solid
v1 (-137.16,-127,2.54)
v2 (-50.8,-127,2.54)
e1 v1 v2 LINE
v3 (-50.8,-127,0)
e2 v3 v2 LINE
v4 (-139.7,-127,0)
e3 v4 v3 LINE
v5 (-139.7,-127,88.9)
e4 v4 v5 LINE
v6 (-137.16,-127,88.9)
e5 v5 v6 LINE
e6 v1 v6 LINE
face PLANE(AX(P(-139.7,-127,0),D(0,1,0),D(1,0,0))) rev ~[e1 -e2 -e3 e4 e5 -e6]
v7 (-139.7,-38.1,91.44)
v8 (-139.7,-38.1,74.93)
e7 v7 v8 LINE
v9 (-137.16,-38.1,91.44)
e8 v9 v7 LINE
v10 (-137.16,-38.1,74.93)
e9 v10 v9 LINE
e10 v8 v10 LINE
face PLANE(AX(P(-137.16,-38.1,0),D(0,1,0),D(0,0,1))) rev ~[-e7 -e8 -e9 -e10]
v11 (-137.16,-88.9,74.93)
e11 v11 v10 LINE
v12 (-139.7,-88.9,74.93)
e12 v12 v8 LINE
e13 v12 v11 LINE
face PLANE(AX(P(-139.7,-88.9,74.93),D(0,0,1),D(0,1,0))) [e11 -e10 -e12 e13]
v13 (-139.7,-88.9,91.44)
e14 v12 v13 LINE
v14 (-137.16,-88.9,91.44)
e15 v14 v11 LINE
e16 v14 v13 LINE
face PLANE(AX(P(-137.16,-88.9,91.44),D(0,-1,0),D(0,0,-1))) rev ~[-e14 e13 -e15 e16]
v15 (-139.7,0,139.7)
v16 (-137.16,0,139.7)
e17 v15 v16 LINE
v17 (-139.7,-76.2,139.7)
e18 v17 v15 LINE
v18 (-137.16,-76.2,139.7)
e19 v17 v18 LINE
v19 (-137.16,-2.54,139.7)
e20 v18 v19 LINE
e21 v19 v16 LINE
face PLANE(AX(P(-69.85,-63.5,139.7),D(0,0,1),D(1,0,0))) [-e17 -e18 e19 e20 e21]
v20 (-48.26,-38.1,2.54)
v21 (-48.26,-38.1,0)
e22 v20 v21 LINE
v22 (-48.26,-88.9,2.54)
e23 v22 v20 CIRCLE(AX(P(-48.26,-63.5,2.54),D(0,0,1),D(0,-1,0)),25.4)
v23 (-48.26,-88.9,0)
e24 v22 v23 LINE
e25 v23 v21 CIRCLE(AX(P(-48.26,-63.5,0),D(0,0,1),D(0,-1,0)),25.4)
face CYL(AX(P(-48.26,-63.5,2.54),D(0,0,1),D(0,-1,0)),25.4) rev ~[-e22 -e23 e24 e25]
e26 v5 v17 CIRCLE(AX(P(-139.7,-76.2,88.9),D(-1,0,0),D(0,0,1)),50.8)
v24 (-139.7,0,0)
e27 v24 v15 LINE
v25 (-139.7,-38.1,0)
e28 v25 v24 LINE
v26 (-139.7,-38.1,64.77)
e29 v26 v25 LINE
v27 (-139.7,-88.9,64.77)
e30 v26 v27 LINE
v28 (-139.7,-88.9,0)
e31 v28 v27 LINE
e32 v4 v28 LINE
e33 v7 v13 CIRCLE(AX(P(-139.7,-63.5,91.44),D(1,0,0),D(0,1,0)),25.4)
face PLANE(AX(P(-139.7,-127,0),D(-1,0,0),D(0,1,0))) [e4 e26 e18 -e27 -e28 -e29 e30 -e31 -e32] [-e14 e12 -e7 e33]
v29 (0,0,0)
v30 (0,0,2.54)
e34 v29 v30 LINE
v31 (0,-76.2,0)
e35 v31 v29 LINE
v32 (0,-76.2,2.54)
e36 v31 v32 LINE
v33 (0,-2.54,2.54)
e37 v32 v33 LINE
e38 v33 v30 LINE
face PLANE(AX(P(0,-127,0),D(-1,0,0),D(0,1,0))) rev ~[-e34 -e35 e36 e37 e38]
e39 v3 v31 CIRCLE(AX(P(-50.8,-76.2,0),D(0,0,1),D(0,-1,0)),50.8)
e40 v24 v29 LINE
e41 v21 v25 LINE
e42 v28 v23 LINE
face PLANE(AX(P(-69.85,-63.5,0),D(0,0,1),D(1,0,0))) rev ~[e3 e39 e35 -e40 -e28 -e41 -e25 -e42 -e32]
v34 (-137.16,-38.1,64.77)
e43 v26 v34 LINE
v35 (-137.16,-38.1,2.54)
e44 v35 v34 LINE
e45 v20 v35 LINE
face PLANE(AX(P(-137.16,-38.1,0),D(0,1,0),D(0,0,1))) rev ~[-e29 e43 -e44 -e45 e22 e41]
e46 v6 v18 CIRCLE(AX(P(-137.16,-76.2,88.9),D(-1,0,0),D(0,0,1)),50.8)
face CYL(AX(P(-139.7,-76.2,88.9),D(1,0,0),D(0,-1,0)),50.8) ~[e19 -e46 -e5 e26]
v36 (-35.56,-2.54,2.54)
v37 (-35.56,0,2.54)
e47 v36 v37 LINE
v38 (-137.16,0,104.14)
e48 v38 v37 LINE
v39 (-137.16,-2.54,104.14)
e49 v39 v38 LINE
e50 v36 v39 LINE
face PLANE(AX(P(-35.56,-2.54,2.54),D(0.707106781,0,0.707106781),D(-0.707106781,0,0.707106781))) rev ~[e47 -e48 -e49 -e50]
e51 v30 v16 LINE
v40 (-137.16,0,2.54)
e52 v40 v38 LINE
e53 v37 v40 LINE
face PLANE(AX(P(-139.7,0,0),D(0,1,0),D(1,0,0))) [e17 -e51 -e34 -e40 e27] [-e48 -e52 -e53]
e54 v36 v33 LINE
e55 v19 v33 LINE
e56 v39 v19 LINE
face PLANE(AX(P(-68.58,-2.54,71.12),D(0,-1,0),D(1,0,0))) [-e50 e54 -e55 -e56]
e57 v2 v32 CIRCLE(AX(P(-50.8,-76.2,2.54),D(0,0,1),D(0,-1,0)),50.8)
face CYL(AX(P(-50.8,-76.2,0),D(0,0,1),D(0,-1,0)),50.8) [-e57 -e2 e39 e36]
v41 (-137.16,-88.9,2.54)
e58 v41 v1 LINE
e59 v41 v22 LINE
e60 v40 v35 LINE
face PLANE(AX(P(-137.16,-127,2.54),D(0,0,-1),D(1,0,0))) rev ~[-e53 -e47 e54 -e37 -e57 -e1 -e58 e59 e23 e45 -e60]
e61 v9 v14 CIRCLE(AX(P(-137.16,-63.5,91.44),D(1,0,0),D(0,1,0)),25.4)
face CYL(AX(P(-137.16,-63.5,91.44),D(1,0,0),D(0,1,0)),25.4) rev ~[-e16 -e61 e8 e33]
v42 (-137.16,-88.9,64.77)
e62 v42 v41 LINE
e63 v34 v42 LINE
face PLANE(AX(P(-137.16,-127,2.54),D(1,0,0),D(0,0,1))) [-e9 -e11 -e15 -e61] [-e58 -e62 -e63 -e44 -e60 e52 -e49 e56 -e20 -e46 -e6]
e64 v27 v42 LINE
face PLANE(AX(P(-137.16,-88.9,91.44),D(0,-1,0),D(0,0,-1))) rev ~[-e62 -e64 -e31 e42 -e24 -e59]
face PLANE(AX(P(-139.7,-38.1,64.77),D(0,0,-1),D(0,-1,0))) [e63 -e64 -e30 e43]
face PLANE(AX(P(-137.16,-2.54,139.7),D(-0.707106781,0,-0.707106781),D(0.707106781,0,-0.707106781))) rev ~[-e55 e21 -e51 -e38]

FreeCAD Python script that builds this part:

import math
import FreeCAD as App
import Part
import Sketcher
from FreeCAD import Vector
Q = App.Units.Quantity


def edges_at(feature, points):
    """Names of the edges that pass closest to the given points."""
    edges = feature.Shape.Edges
    near = lambda p: min(range(len(edges)), key=lambda i: edges[i].distToShape(Part.Vertex(*p))[0])
    return sorted({f"Edge{near(p) + 1}" for p in points})

doc = App.newDocument("Part")
body = doc.addObject("PartDesign::Body", "Body")

# Sketch on XY plane
sketch1 = doc.addObject("Sketcher::SketchObject", "Sketch")
body.addObject(sketch1)
sketch1.AttachmentSupport = (doc.XY_Plane, [""])
sketch1.MapMode = "FlatFace"
sketch1.addGeometry([
    Part.LineSegment(Vector(-139.7, 0, 0), Vector(-139.7, -127, 0)),
    Part.LineSegment(Vector(-139.7, -127, 0), Vector(0, -127, 0)),
    Part.LineSegment(Vector(0, -127, 0), Vector(0, 0, 0)),
    Part.LineSegment(Vector(0, 0, 0), Vector(-139.7, 0, 0)),
], False)
sketch1.addConstraint([
    Sketcher.Constraint("Coincident", 0, 2, 1, 1),
    Sketcher.Constraint("Coincident", 1, 2, 2, 1),
    Sketcher.Constraint("Coincident", 2, 2, 3, 1),
    Sketcher.Constraint("Coincident", 3, 2, 0, 1),
    Sketcher.Constraint("Vertical", 0),
    Sketcher.Constraint("Horizontal", 1),
    Sketcher.Constraint("Vertical", 2),
    Sketcher.Constraint("Horizontal", 3),
    Sketcher.Constraint("Coincident", 2, 2, -1, 1),
    Sketcher.Constraint("DistanceY", 0, 2, 0, 1, Q("5 in")),
    Sketcher.Constraint("DistanceX", 1, 1, 1, 2, Q("5.5 in")),
])
pad1 = doc.addObject("PartDesign::Pad", "Pad")
body.addObject(pad1)
pad1.Profile = sketch1
pad1.Length = Q("5.5 in")

# Sketch on XZ plane
sketch2 = doc.addObject("Sketcher::SketchObject", "Sketch001")
body.addObject(sketch2)
sketch2.AttachmentSupport = (doc.XZ_Plane, [""])
sketch2.MapMode = "FlatFace"
sketch2.AttachmentOffset = App.Placement(Vector(0, 0, 5 * 25.4), App.Rotation())
sketch2.addGeometry([
    Part.LineSegment(Vector(-137.16, 139.7, 0), Vector(-137.16, 2.54, 0)),
    Part.LineSegment(Vector(-137.16, 2.54, 0), Vector(0, 2.54, 0)),
    Part.LineSegment(Vector(0, 2.54, 0), Vector(0, 139.7, 0)),
    Part.LineSegment(Vector(0, 139.7, 0), Vector(-137.16, 139.7, 0)),
], False)
sketch2.addConstraint([
    Sketcher.Constraint("Coincident", 0, 2, 1, 1),
    Sketcher.Constraint("Coincident", 1, 2, 2, 1),
    Sketcher.Constraint("Coincident", 2, 2, 3, 1),
    Sketcher.Constraint("Coincident", 3, 2, 0, 1),
    Sketcher.Constraint("Vertical", 0),
    Sketcher.Constraint("Horizontal", 1),
    Sketcher.Constraint("Vertical", 2),
    Sketcher.Constraint("Horizontal", 3),
    Sketcher.Constraint("PointOnObject", 1, 2, -2),
    Sketcher.Constraint("Equal", 3, 0),
    Sketcher.Constraint("DistanceX", 1, 1, 1, 2, Q("5.4 in")),
    Sketcher.Constraint("DistanceY", -1, 1, 0, 2, Q("0.1 in")),
])
pocket1 = doc.addObject("PartDesign::Pocket", "Pocket")
body.addObject(pocket1)
pocket1.Profile = sketch2
pocket1.Length = Q("4.9 in")

# Sketch on XZ plane
sketch3 = doc.addObject("Sketcher::SketchObject", "Sketch002")
body.addObject(sketch3)
sketch3.AttachmentSupport = (doc.XZ_Plane, [""])
sketch3.MapMode = "FlatFace"
sketch3.AttachmentOffset = App.Placement(Vector(0, 0, 0.1 * 25.4), App.Rotation())
sketch3.addGeometry([
    Part.LineSegment(Vector(-6.918556, 178.288981, 0), Vector(-137.16, 139.7, 0)),
    Part.LineSegment(Vector(-137.16, 139.7, 0), Vector(0, 2.54, 0)),
    Part.LineSegment(Vector(0, 2.54, 0), Vector(55.803198, 142.750546, 0)),
    Part.LineSegment(Vector(55.803198, 142.750546, 0), Vector(-6.918556, 178.288981, 0)),
], False)
sketch3.addConstraint([
    Sketcher.Constraint("Coincident", 0, 2, 1, 1),
    Sketcher.Constraint("Coincident", 1, 2, 2, 1),
    Sketcher.Constraint("Coincident", 2, 2, 3, 1),
    Sketcher.Constraint("Coincident", 3, 2, 0, 1),
    Sketcher.Constraint("PointOnObject", 1, 2, -2),
    Sketcher.Constraint("Angle", 1, Q("-45 deg")),
    Sketcher.Constraint("DistanceX", 0, 2, -1, 1, Q("5.4 in")),
    Sketcher.Constraint("DistanceY", -1, 1, 0, 2, Q("5.5 in")),
    Sketcher.Constraint("DistanceX", -1, 1, 2, 2, 55.803198),
    Sketcher.Constraint("Distance", 0, 135.83793),
    Sketcher.Constraint("DistanceY", -1, 1, 3, 2, 178.288981),
    Sketcher.Constraint("Distance", 2, 150.907237),
])
pocket2 = doc.addObject("PartDesign::Pocket", "Pocket001")
body.addObject(pocket2)
pocket2.Profile = sketch3
pocket2.Length = Q("1 in")

# Sketch on XZ plane
sketch4 = doc.addObject("Sketcher::SketchObject", "Sketch003")
body.addObject(sketch4)
sketch4.AttachmentSupport = (doc.XZ_Plane, [""])
sketch4.MapMode = "FlatFace"
sketch4.AttachmentOffset = App.Placement(Vector(0, 0, 0.1 * 25.4), App.Rotation())
sketch4.addGeometry([
    Part.LineSegment(Vector(-137.16, 104.14, 0), Vector(-137.16, 2.54, 0)),
    Part.LineSegment(Vector(-137.16, 2.54, 0), Vector(-35.56, 2.54, 0)),
    Part.LineSegment(Vector(-35.56, 2.54, 0), Vector(-137.16, 104.14, 0)),
], False)
sketch4.addConstraint([
    Sketcher.Constraint("Coincident", 0, 2, 1, 1),
    Sketcher.Constraint("Coincident", 1, 2, 2, 1),
    Sketcher.Constraint("Coincident", 2, 2, 0, 1),
    Sketcher.Constraint("Vertical", 0),
    Sketcher.Constraint("Horizontal", 1),
    Sketcher.Constraint("Equal", 1, 0),
    Sketcher.Constraint("DistanceX", 1, 1, 1, 2, Q("4 in")),
    Sketcher.Constraint("DistanceX", 0, 2, -1, 1, Q("5.4 in")),
    Sketcher.Constraint("DistanceY", -1, 1, 0, 2, Q("0.1 in")),
])
pocket3 = doc.addObject("PartDesign::Pocket", "Pocket002")
body.addObject(pocket3)
pocket3.Profile = sketch4
pocket3.Length = Q("1 in")

# Sketch on XY plane
sketch5 = doc.addObject("Sketcher::SketchObject", "Sketch004")
body.addObject(sketch5)
sketch5.AttachmentSupport = (doc.XY_Plane, [""])
sketch5.MapMode = "FlatFace"
sketch5.AttachmentOffset = App.Placement(Vector(0, 0, 0.1 * 25.4), App.Rotation())
sketch5.addGeometry([
    Part.LineSegment(Vector(-137.16, -38.1, 0), Vector(-137.16, -88.9, 0)),
    Part.LineSegment(Vector(-137.16, -88.9, 0), Vector(-48.26, -88.9, 0)),
    Part.ArcOfCircle(Part.Circle(Vector(-48.26, -63.5, 0), Vector(0, 0, 1), 25.4), math.radians(-90), math.radians(90)),
    Part.LineSegment(Vector(-48.26, -38.1, 0), Vector(-137.16, -38.1, 0)),
], False)
sketch5.addConstraint([
    Sketcher.Constraint("Coincident", 0, 2, 1, 1),
    Sketcher.Constraint("Tangent", 1, 2, 2, 1),
    Sketcher.Constraint("Tangent", 2, 2, 3, 1),
    Sketcher.Constraint("Coincident", 3, 2, 0, 1),
    Sketcher.Constraint("Vertical", 0),
    Sketcher.Constraint("Horizontal", 1),
    Sketcher.Constraint("Horizontal", 3),
    Sketcher.Constraint("Radius", 2, Q("1 in")),
    Sketcher.Constraint("DistanceX", 1, 1, 1, 2, Q("3.5 in")),
    Sketcher.Constraint("DistanceX", 2, 3, -1, 1, Q("1.9 in")),
    Sketcher.Constraint("DistanceY", 2, 3, -1, 1, Q("2.5 in")),
])
pocket4 = doc.addObject("PartDesign::Pocket", "Pocket003")
body.addObject(pocket4)
pocket4.Profile = sketch5
pocket4.Length = Q("1 in")

# Sketch on YZ plane
sketch6 = doc.addObject("Sketcher::SketchObject", "Sketch005")
body.addObject(sketch6)
sketch6.AttachmentSupport = (doc.YZ_Plane, [""])
sketch6.MapMode = "FlatFace"
sketch6.AttachmentOffset = App.Placement(Vector(0, 0, -5.4 * 25.4), App.Rotation())
sketch6.addGeometry([
    Part.LineSegment(Vector(-38.1, 0, 0), Vector(-38.1, 91.44, 0)),
    Part.ArcOfCircle(Part.Circle(Vector(-63.5, 91.44, 0), Vector(0, 0, 1), 25.4), math.radians(0), math.radians(180)),
    Part.LineSegment(Vector(-88.9, 91.44, 0), Vector(-88.9, 0, 0)),
    Part.LineSegment(Vector(-88.9, 0, 0), Vector(-38.1, 0, 0)),
], False)
sketch6.addConstraint([
    Sketcher.Constraint("Tangent", 0, 2, 1, 1),
    Sketcher.Constraint("Tangent", 1, 2, 2, 1),
    Sketcher.Constraint("Coincident", 2, 2, 3, 1),
    Sketcher.Constraint("Coincident", 3, 2, 0, 1),
    Sketcher.Constraint("Vertical", 0),
    Sketcher.Constraint("Vertical", 2),
    Sketcher.Constraint("Horizontal", 3),
    Sketcher.Constraint("PointOnObject", 2, 2, -1),
    Sketcher.Constraint("Radius", 1, Q("1 in")),
    Sketcher.Constraint("DistanceY", 0, 1, 0, 2, Q("3.6 in")),
    Sketcher.Constraint("DistanceX", 1, 3, -1, 1, Q("2.5 in")),
])
pocket5 = doc.addObject("PartDesign::Pocket", "Pocket004")
body.addObject(pocket5)
pocket5.Profile = sketch6
pocket5.Length = Q("1 in")
doc.recompute()

fillet = doc.addObject("PartDesign::Fillet", "Fillet")
body.addObject(fillet)
fillet.Base = (pocket5, edges_at(pocket5, [(0, -127, 1.27), (-138.43, -127, 139.7)]))
fillet.Radius = Q("2 in")

# Sketch on YZ plane
sketch7 = doc.addObject("Sketcher::SketchObject", "Sketch006")
body.addObject(sketch7)
sketch7.AttachmentSupport = (doc.YZ_Plane, [""])
sketch7.MapMode = "FlatFace"
sketch7.AttachmentOffset = App.Placement(Vector(0, 0, -5.5 * 25.4), App.Rotation())
sketch7.addGeometry([
    Part.LineSegment(Vector(-38.1, 74.93, 0), Vector(-38.1, 64.77, 0)),
    Part.LineSegment(Vector(-38.1, 64.77, 0), Vector(-88.9, 64.77, 0)),
    Part.LineSegment(Vector(-88.9, 64.77, 0), Vector(-88.9, 74.93, 0)),
    Part.LineSegment(Vector(-88.9, 74.93, 0), Vector(-38.1, 74.93, 0)),
], False)
sketch7.addConstraint([
    Sketcher.Constraint("Coincident", 0, 2, 1, 1),
    Sketcher.Constraint("Coincident", 1, 2, 2, 1),
    Sketcher.Constraint("Coincident", 2, 2, 3, 1),
    Sketcher.Constraint("Coincident", 3, 2, 0, 1),
    Sketcher.Constraint("Vertical", 0),
    Sketcher.Constraint("Horizontal", 1),
    Sketcher.Constraint("Vertical", 2),
    Sketcher.Constraint("Horizontal", 3),
    Sketcher.Constraint("DistanceX", 1, 2, 1, 1, Q("2 in")),
    Sketcher.Constraint("DistanceY", 0, 2, 0, 1, Q("0.4 in")),
    Sketcher.Constraint("DistanceX", 0, 2, -1, 1, Q("1.5 in")),
    Sketcher.Constraint("DistanceY", -1, 1, 0, 2, Q("2.55 in")),
])
pad2 = doc.addObject("PartDesign::Pad", "Pad001")
body.addObject(pad2)
pad2.Profile = sketch7
pad2.Length = Q("0.1 in")

doc.recompute()
